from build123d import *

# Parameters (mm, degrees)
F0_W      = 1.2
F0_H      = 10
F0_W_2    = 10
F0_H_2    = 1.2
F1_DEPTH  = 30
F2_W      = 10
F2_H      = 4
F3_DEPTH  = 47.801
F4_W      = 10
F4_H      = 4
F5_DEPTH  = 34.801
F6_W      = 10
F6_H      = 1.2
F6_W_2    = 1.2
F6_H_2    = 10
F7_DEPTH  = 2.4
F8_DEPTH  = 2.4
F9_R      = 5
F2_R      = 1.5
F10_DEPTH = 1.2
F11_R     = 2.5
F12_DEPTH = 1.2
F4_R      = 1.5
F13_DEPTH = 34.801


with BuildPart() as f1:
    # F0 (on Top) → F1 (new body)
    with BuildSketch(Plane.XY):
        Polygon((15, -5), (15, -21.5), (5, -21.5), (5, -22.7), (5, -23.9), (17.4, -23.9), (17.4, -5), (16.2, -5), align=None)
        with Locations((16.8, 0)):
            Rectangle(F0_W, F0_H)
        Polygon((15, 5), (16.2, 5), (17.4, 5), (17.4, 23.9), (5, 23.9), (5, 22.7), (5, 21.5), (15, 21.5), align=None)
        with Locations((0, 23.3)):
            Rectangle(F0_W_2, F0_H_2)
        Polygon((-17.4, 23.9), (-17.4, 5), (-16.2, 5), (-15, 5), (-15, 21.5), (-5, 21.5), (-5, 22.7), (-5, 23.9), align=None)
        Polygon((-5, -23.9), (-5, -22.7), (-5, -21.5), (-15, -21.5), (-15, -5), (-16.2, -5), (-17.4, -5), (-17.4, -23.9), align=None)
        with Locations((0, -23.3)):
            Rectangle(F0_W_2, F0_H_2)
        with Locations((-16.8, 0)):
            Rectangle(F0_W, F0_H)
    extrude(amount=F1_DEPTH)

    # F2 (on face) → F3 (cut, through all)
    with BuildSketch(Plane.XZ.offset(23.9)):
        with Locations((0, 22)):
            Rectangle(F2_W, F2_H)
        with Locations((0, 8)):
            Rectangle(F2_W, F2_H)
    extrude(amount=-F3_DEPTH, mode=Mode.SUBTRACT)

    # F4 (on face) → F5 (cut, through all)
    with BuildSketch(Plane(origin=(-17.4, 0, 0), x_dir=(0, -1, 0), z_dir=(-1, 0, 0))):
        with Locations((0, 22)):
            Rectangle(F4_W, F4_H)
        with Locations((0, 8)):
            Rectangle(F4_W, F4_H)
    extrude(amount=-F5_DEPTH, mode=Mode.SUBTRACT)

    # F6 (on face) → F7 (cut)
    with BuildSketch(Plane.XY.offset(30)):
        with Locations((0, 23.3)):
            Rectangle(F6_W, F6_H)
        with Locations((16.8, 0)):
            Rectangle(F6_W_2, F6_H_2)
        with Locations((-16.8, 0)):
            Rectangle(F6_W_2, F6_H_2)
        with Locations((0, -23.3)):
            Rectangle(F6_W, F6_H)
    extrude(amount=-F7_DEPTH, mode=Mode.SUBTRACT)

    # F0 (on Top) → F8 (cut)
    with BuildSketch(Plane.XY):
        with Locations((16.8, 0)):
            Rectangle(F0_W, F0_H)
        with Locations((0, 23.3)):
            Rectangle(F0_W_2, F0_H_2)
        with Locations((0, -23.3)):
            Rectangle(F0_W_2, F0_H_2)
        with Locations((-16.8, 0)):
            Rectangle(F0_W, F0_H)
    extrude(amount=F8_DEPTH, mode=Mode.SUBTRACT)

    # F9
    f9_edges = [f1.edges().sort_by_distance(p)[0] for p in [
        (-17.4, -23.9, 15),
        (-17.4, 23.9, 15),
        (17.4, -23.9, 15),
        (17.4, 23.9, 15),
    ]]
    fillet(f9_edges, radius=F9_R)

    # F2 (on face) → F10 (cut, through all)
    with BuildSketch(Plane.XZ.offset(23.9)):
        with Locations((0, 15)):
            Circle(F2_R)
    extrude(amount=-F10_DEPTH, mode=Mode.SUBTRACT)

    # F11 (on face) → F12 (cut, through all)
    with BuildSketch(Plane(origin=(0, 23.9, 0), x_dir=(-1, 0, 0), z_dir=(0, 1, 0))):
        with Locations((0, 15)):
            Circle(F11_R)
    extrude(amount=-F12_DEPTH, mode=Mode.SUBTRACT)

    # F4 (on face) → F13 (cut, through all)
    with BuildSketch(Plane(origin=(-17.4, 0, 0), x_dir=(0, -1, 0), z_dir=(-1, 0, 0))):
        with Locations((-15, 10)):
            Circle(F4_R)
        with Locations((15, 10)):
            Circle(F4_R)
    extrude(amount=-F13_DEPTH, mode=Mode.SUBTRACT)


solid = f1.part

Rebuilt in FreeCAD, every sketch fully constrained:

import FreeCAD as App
import Part
import Sketcher


def edges_at(feature, points):
    """Names of the edges that pass closest to the given points."""
    edges = feature.Shape.Edges
    near = lambda p: min(range(len(edges)), key=lambda i: edges[i].distToShape(Part.Vertex(*p))[0])
    return sorted({f"Edge{near(p) + 1}" for p in points})

doc = App.newDocument("Part")
body = doc.addObject("PartDesign::Body", "Body")

# Sketch on XY plane
sketch1 = body.newObject("Sketcher::SketchObject", "Sketch")
sketch1.AttachmentSupport = (doc.getObject("XY_Plane"), [""])
sketch1.MapMode = "FlatFace"
sketch1.addGeometry([
    Part.LineSegment(App.Vector(-17.4, -23.9, 0), App.Vector(17.4, -23.9, 0)),  # 0
    Part.LineSegment(App.Vector(17.4, -23.9, 0), App.Vector(17.4, 23.9, 0)),  # 1
    Part.LineSegment(App.Vector(17.4, 23.9, 0), App.Vector(-17.4, 23.9, 0)),  # 2
    Part.LineSegment(App.Vector(-17.4, 23.9, 0), App.Vector(-17.4, -23.9, 0)),  # 3
    Part.LineSegment(App.Vector(15, -5, 0), App.Vector(15, -21.5, 0)),  # 4
    Part.LineSegment(App.Vector(15, -21.5, 0), App.Vector(5, -21.5, 0)),  # 5
    Part.LineSegment(App.Vector(5, -21.5, 0), App.Vector(5, -22.7, 0)),  # 6
    Part.LineSegment(App.Vector(5, -22.7, 0), App.Vector(-5, -22.7, 0)),  # 7
    Part.LineSegment(App.Vector(-5, -22.7, 0), App.Vector(-5, -21.5, 0)),  # 8
    Part.LineSegment(App.Vector(-5, -21.5, 0), App.Vector(-15, -21.5, 0)),  # 9
    Part.LineSegment(App.Vector(-15, -21.5, 0), App.Vector(-15, -5, 0)),  # 10
    Part.LineSegment(App.Vector(-15, -5, 0), App.Vector(-16.2, -5, 0)),  # 11
    Part.LineSegment(App.Vector(-16.2, -5, 0), App.Vector(-16.2, 5, 0)),  # 12
    Part.LineSegment(App.Vector(-16.2, 5, 0), App.Vector(-15, 5, 0)),  # 13
    Part.LineSegment(App.Vector(-15, 5, 0), App.Vector(-15, 21.5, 0)),  # 14
    Part.LineSegment(App.Vector(-15, 21.5, 0), App.Vector(-5, 21.5, 0)),  # 15
    Part.LineSegment(App.Vector(-5, 21.5, 0), App.Vector(-5, 22.7, 0)),  # 16
    Part.LineSegment(App.Vector(-5, 22.7, 0), App.Vector(5, 22.7, 0)),  # 17
    Part.LineSegment(App.Vector(5, 22.7, 0), App.Vector(5, 21.5, 0)),  # 18
    Part.LineSegment(App.Vector(5, 21.5, 0), App.Vector(15, 21.5, 0)),  # 19
    Part.LineSegment(App.Vector(15, 21.5, 0), App.Vector(15, 5, 0)),  # 20
    Part.LineSegment(App.Vector(15, 5, 0), App.Vector(16.2, 5, 0)),  # 21
    Part.LineSegment(App.Vector(16.2, 5, 0), App.Vector(16.2, -5, 0)),  # 22
    Part.LineSegment(App.Vector(16.2, -5, 0), App.Vector(15, -5, 0)),  # 23
], False)
sketch1.addConstraint([
    Sketcher.Constraint("Coincident", 0, 2, 1, 1),
    Sketcher.Constraint("Coincident", 1, 2, 2, 1),
    Sketcher.Constraint("Coincident", 2, 2, 3, 1),
    Sketcher.Constraint("Coincident", 3, 2, 0, 1),
    Sketcher.Constraint("Coincident", 4, 2, 5, 1),
    Sketcher.Constraint("Coincident", 5, 2, 6, 1),
    Sketcher.Constraint("Coincident", 6, 2, 7, 1),
    Sketcher.Constraint("Coincident", 7, 2, 8, 1),
    Sketcher.Constraint("Coincident", 8, 2, 9, 1),
    Sketcher.Constraint("Coincident", 9, 2, 10, 1),
    Sketcher.Constraint("Coincident", 10, 2, 11, 1),
    Sketcher.Constraint("Coincident", 11, 2, 12, 1),
    Sketcher.Constraint("Coincident", 12, 2, 13, 1),
    Sketcher.Constraint("Coincident", 13, 2, 14, 1),
    Sketcher.Constraint("Coincident", 14, 2, 15, 1),
    Sketcher.Constraint("Coincident", 15, 2, 16, 1),
    Sketcher.Constraint("Coincident", 16, 2, 17, 1),
    Sketcher.Constraint("Coincident", 17, 2, 18, 1),
    Sketcher.Constraint("Coincident", 18, 2, 19, 1),
    Sketcher.Constraint("Coincident", 19, 2, 20, 1),
    Sketcher.Constraint("Coincident", 20, 2, 21, 1),
    Sketcher.Constraint("Coincident", 21, 2, 22, 1),
    Sketcher.Constraint("Coincident", 22, 2, 23, 1),
    Sketcher.Constraint("Coincident", 23, 2, 4, 1),
    Sketcher.Constraint("Horizontal", 0),
    Sketcher.Constraint("Vertical", 1),
    Sketcher.Constraint("Horizontal", 2),
    Sketcher.Constraint("Vertical", 3),
    Sketcher.Constraint("Vertical", 4),
    Sketcher.Constraint("Horizontal", 5),
    Sketcher.Constraint("Vertical", 6),
    Sketcher.Constraint("Horizontal", 7),
    Sketcher.Constraint("Vertical", 8),
    Sketcher.Constraint("Horizontal", 9),
    Sketcher.Constraint("Vertical", 10),
    Sketcher.Constraint("Horizontal", 11),
    Sketcher.Constraint("Vertical", 12),
    Sketcher.Constraint("Horizontal", 13),
    Sketcher.Constraint("Vertical", 14),
    Sketcher.Constraint("Horizontal", 15),
    Sketcher.Constraint("Vertical", 16),
    Sketcher.Constraint("Horizontal", 17),
    Sketcher.Constraint("Vertical", 18),
    Sketcher.Constraint("Horizontal", 19),
    Sketcher.Constraint("Vertical", 20),
    Sketcher.Constraint("Horizontal", 21),
    Sketcher.Constraint("Vertical", 22),
    Sketcher.Constraint("Horizontal", 23),
    Sketcher.Constraint("Symmetric", 0, 2, 2, 2, -1, 1),
    Sketcher.Constraint("Symmetric", 4, 2, 14, 2, -1, 1),
    Sketcher.Constraint("Symmetric", 6, 2, 16, 2, -1, 1),
    Sketcher.Constraint("Symmetric", 8, 2, 18, 2, -1, 1),
    Sketcher.Constraint("Symmetric", 10, 2, 20, 2, -1, 1),
    Sketcher.Constraint("Symmetric", 12, 2, 22, 2, -1, 1),
    Sketcher.Constraint("Symmetric", 5, 2, 8, 2, -2),
    Sketcher.Constraint("Symmetric", 13, 2, 20, 2, -2),
    Sketcher.Constraint("Equal", 5, 7),
    Sketcher.Constraint("Equal", 23, 6),
    Sketcher.Constraint("Equal", 19, 12),
    Sketcher.Constraint("DistanceX", 5, 2, 5, 1, 10.0),
    Sketcher.Constraint("DistanceX", 0, 1, 0, 2, 34.8),
    Sketcher.Constraint("DistanceX", 11, 2, 11, 1, 1.2),
    Sketcher.Constraint("DistanceY", 1, 1, 1, 2, 47.8),
    Sketcher.Constraint("DistanceY", 4, 2, 4, 1, 16.5),
])
pad1 = body.newObject("PartDesign::Pad", "Pad")
pad1.Profile = sketch1
pad1.Length = 30

# Sketch on XZ plane
sketch2 = body.newObject("Sketcher::SketchObject", "Sketch001")
sketch2.AttachmentSupport = (doc.getObject("XZ_Plane"), [""])
sketch2.MapMode = "FlatFace"
sketch2.AttachmentOffset = App.Placement(App.Vector(0, 0, 23.9), App.Rotation())
sketch2.addGeometry([
    Part.LineSegment(App.Vector(-5, 24, 0), App.Vector(-5, 20, 0)),  # 0
    Part.LineSegment(App.Vector(-5, 20, 0), App.Vector(5, 20, 0)),  # 1
    Part.LineSegment(App.Vector(5, 20, 0), App.Vector(5, 24, 0)),  # 2
    Part.LineSegment(App.Vector(5, 24, 0), App.Vector(-5, 24, 0)),  # 3
    Part.LineSegment(App.Vector(-5, 10, 0), App.Vector(-5, 6, 0)),  # 4
    Part.LineSegment(App.Vector(-5, 6, 0), App.Vector(5, 6, 0)),  # 5
    Part.LineSegment(App.Vector(5, 6, 0), App.Vector(5, 10, 0)),  # 6
    Part.LineSegment(App.Vector(5, 10, 0), App.Vector(-5, 10, 0)),  # 7
], False)
sketch2.addConstraint([
    Sketcher.Constraint("Coincident", 0, 2, 1, 1),
    Sketcher.Constraint("Coincident", 1, 2, 2, 1),
    Sketcher.Constraint("Coincident", 2, 2, 3, 1),
    Sketcher.Constraint("Coincident", 3, 2, 0, 1),
    Sketcher.Constraint("Coincident", 4, 2, 5, 1),
    Sketcher.Constraint("Coincident", 5, 2, 6, 1),
    Sketcher.Constraint("Coincident", 6, 2, 7, 1),
    Sketcher.Constraint("Coincident", 7, 2, 4, 1),
    Sketcher.Constraint("Vertical", 0),
    Sketcher.Constraint("Horizontal", 1),
    Sketcher.Constraint("Vertical", 2),
    Sketcher.Constraint("Horizontal", 3),
    Sketcher.Constraint("Vertical", 4),
    Sketcher.Constraint("Horizontal", 5),
    Sketcher.Constraint("Vertical", 6),
    Sketcher.Constraint("Horizontal", 7),
    Sketcher.Constraint("Vertical", 3, 2, 4, 2),
    Sketcher.Constraint("Vertical", 2, 2, 5, 2),
    Sketcher.Constraint("Equal", 2, 4),
    Sketcher.Constraint("DistanceX", 1, 1, 1, 2, 10.0),
    Sketcher.Constraint("DistanceY", 0, 2, 0, 1, 4.0),
    Sketcher.Constraint("DistanceX", 0, 2, -1, 1, 5.0),
    Sketcher.Constraint("DistanceY", -1, 1, 0, 2, 20.0),
    Sketcher.Constraint("DistanceY", -1, 1, 4, 2, 6.0),
])
pocket1 = body.newObject("PartDesign::Pocket", "Pocket")
pocket1.Profile = sketch2
pocket1.Type = "ThroughAll"

# Sketch on YZ plane
sketch3 = body.newObject("Sketcher::SketchObject", "Sketch002")
sketch3.AttachmentSupport = (doc.getObject("YZ_Plane"), [""])
sketch3.MapMode = "FlatFace"
sketch3.AttachmentOffset = App.Placement(App.Vector(0, 0, -17.4), App.Rotation())
sketch3.addGeometry([
    Part.LineSegment(App.Vector(5, 24, 0), App.Vector(5, 20, 0)),  # 0
    Part.LineSegment(App.Vector(5, 20, 0), App.Vector(-5, 20, 0)),  # 1
    Part.LineSegment(App.Vector(-5, 20, 0), App.Vector(-5, 24, 0)),  # 2
    Part.LineSegment(App.Vector(-5, 24, 0), App.Vector(5, 24, 0)),  # 3
    Part.LineSegment(App.Vector(5, 10, 0), App.Vector(5, 6, 0)),  # 4
    Part.LineSegment(App.Vector(5, 6, 0), App.Vector(-5, 6, 0)),  # 5
    Part.LineSegment(App.Vector(-5, 6, 0), App.Vector(-5, 10, 0)),  # 6
    Part.LineSegment(App.Vector(-5, 10, 0), App.Vector(5, 10, 0)),  # 7
], False)
sketch3.addConstraint([
    Sketcher.Constraint("Coincident", 0, 2, 1, 1),
    Sketcher.Constraint("Coincident", 1, 2, 2, 1),
    Sketcher.Constraint("Coincident", 2, 2, 3, 1),
    Sketcher.Constraint("Coincident", 3, 2, 0, 1),
    Sketcher.Constraint("Coincident", 4, 2, 5, 1),
    Sketcher.Constraint("Coincident", 5, 2, 6, 1),
    Sketcher.Constraint("Coincident", 6, 2, 7, 1),
    Sketcher.Constraint("Coincident", 7, 2, 4, 1),
    Sketcher.Constraint("Vertical", 0),
    Sketcher.Constraint("Horizontal", 1),
    Sketcher.Constraint("Vertical", 2),
    Sketcher.Constraint("Horizontal", 3),
    Sketcher.Constraint("Vertical", 4),
    Sketcher.Constraint("Horizontal", 5),
    Sketcher.Constraint("Vertical", 6),
    Sketcher.Constraint("Horizontal", 7),
    Sketcher.Constraint("Vertical", 3, 2, 4, 2),
    Sketcher.Constraint("Vertical", 2, 2, 5, 2),
    Sketcher.Constraint("Equal", 2, 4),
    Sketcher.Constraint("DistanceX", 1, 2, 1, 1, 10.0),
    Sketcher.Constraint("DistanceY", 0, 2, 0, 1, 4.0),
    Sketcher.Constraint("DistanceX", -1, 1, 0, 2, 5.0),
    Sketcher.Constraint("DistanceY", -1, 1, 0, 2, 20.0),
    Sketcher.Constraint("DistanceY", -1, 1, 4, 2, 6.0),
])
pocket2 = body.newObject("PartDesign::Pocket", "Pocket001")
pocket2.Profile = sketch3
pocket2.Type = "ThroughAll"
pocket2.Reversed = True

# Sketch on XY plane
sketch4 = body.newObject("Sketcher::SketchObject", "Sketch003")
sketch4.AttachmentSupport = (doc.getObject("XY_Plane"), [""])
sketch4.MapMode = "FlatFace"
sketch4.AttachmentOffset = App.Placement(App.Vector(0, 0, 30), App.Rotation())
sketch4.addGeometry([
    Part.LineSegment(App.Vector(-5, 23.9, 0), App.Vector(-5, 22.7, 0)),  # 0
    Part.LineSegment(App.Vector(-5, 22.7, 0), App.Vector(5, 22.7, 0)),  # 1
    Part.LineSegment(App.Vector(5, 22.7, 0), App.Vector(5, 23.9, 0)),  # 2
    Part.LineSegment(App.Vector(5, 23.9, 0), App.Vector(-5, 23.9, 0)),  # 3
    Part.LineSegment(App.Vector(16.2, 5, 0), App.Vector(16.2, -5, 0)),  # 4
    Part.LineSegment(App.Vector(16.2, -5, 0), App.Vector(17.4, -5, 0)),  # 5
    Part.LineSegment(App.Vector(17.4, -5, 0), App.Vector(17.4, 5, 0)),  # 6
    Part.LineSegment(App.Vector(17.4, 5, 0), App.Vector(16.2, 5, 0)),  # 7
    Part.LineSegment(App.Vector(-17.4, 5, 0), App.Vector(-17.4, -5, 0)),  # 8
    Part.LineSegment(App.Vector(-17.4, -5, 0), App.Vector(-16.2, -5, 0)),  # 9
    Part.LineSegment(App.Vector(-16.2, -5, 0), App.Vector(-16.2, 5, 0)),  # 10
    Part.LineSegment(App.Vector(-16.2, 5, 0), App.Vector(-17.4, 5, 0)),  # 11
    Part.LineSegment(App.Vector(-5, -22.7, 0), App.Vector(-5, -23.9, 0)),  # 12
    Part.LineSegment(App.Vector(-5, -23.9, 0), App.Vector(5, -23.9, 0)),  # 13
    Part.LineSegment(App.Vector(5, -23.9, 0), App.Vector(5, -22.7, 0)),  # 14
    Part.LineSegment(App.Vector(5, -22.7, 0), App.Vector(-5, -22.7, 0)),  # 15
], False)
sketch4.addConstraint([
    Sketcher.Constraint("Coincident", 0, 2, 1, 1),
    Sketcher.Constraint("Coincident", 1, 2, 2, 1),
    Sketcher.Constraint("Coincident", 2, 2, 3, 1),
    Sketcher.Constraint("Coincident", 3, 2, 0, 1),
    Sketcher.Constraint("Coincident", 4, 2, 5, 1),
    Sketcher.Constraint("Coincident", 5, 2, 6, 1),
    Sketcher.Constraint("Coincident", 6, 2, 7, 1),
    Sketcher.Constraint("Coincident", 7, 2, 4, 1),
    Sketcher.Constraint("Coincident", 8, 2, 9, 1),
    Sketcher.Constraint("Coincident", 9, 2, 10, 1),
    Sketcher.Constraint("Coincident", 10, 2, 11, 1),
    Sketcher.Constraint("Coincident", 11, 2, 8, 1),
    Sketcher.Constraint("Coincident", 12, 2, 13, 1),
    Sketcher.Constraint("Coincident", 13, 2, 14, 1),
    Sketcher.Constraint("Coincident", 14, 2, 15, 1),
    Sketcher.Constraint("Coincident", 15, 2, 12, 1),
    Sketcher.Constraint("Vertical", 0),
    Sketcher.Constraint("Horizontal", 1),
    Sketcher.Constraint("Vertical", 2),
    Sketcher.Constraint("Horizontal", 3),
    Sketcher.Constraint("Vertical", 4),
    Sketcher.Constraint("Horizontal", 5),
    Sketcher.Constraint("Vertical", 6),
    Sketcher.Constraint("Horizontal", 7),
    Sketcher.Constraint("Vertical", 8),
    Sketcher.Constraint("Horizontal", 9),
    Sketcher.Constraint("Vertical", 10),
    Sketcher.Constraint("Horizontal", 11),
    Sketcher.Constraint("Vertical", 12),
    Sketcher.Constraint("Horizontal", 13),
    Sketcher.Constraint("Vertical", 14),
    Sketcher.Constraint("Horizontal", 15),
    Sketcher.Constraint("Symmetric", 6, 2, 8, 2, -1, 1),
    Sketcher.Constraint("Symmetric", 4, 2, 10, 2, -1, 1),
    Sketcher.Constraint("Symmetric", 2, 2, 12, 2, -1, 1),
    Sketcher.Constraint("Symmetric", 0, 2, 14, 2, -1, 1),
    Sketcher.Constraint("Horizontal", 5, 2, 8, 2),
    Sketcher.Constraint("Vertical", 3, 2, 12, 2),
    Sketcher.Constraint("Equal", 11, 0),
    Sketcher.Constraint("Equal", 15, 4),
    Sketcher.Constraint("DistanceX", 1, 1, 1, 2, 10.0),
    Sketcher.Constraint("DistanceX", 5, 1, 5, 2, 1.2),
    Sketcher.Constraint("DistanceY", -1, 1, 0, 2, 22.7),
    Sketcher.Constraint("DistanceX", -1, 1, 4, 2, 16.2),
])
pocket3 = body.newObject("PartDesign::Pocket", "Pocket002")
pocket3.Profile = sketch4
pocket3.Length = 2.4

# Sketch on XY plane
sketch5 = body.newObject("Sketcher::SketchObject", "Sketch004")
sketch5.AttachmentSupport = (doc.getObject("XY_Plane"), [""])
sketch5.MapMode = "FlatFace"
sketch5.addGeometry([
    Part.LineSegment(App.Vector(16.2, 5, 0), App.Vector(16.2, -5, 0)),  # 0
    Part.LineSegment(App.Vector(16.2, -5, 0), App.Vector(17.4, -5, 0)),  # 1
    Part.LineSegment(App.Vector(17.4, -5, 0), App.Vector(17.4, 5, 0)),  # 2
    Part.LineSegment(App.Vector(17.4, 5, 0), App.Vector(16.2, 5, 0)),  # 3
    Part.LineSegment(App.Vector(-5, 23.9, 0), App.Vector(-5, 22.7, 0)),  # 4
    Part.LineSegment(App.Vector(-5, 22.7, 0), App.Vector(5, 22.7, 0)),  # 5
    Part.LineSegment(App.Vector(5, 22.7, 0), App.Vector(5, 23.9, 0)),  # 6
    Part.LineSegment(App.Vector(5, 23.9, 0), App.Vector(-5, 23.9, 0)),  # 7
    Part.LineSegment(App.Vector(-5, -22.7, 0), App.Vector(-5, -23.9, 0)),  # 8
    Part.LineSegment(App.Vector(-5, -23.9, 0), App.Vector(5, -23.9, 0)),  # 9
    Part.LineSegment(App.Vector(5, -23.9, 0), App.Vector(5, -22.7, 0)),  # 10
    Part.LineSegment(App.Vector(5, -22.7, 0), App.Vector(-5, -22.7, 0)),  # 11
    Part.LineSegment(App.Vector(-17.4, 5, 0), App.Vector(-17.4, -5, 0)),  # 12
    Part.LineSegment(App.Vector(-17.4, -5, 0), App.Vector(-16.2, -5, 0)),  # 13
    Part.LineSegment(App.Vector(-16.2, -5, 0), App.Vector(-16.2, 5, 0)),  # 14
    Part.LineSegment(App.Vector(-16.2, 5, 0), App.Vector(-17.4, 5, 0)),  # 15
], False)
sketch5.addConstraint([
    Sketcher.Constraint("Coincident", 0, 2, 1, 1),
    Sketcher.Constraint("Coincident", 1, 2, 2, 1),
    Sketcher.Constraint("Coincident", 2, 2, 3, 1),
    Sketcher.Constraint("Coincident", 3, 2, 0, 1),
    Sketcher.Constraint("Coincident", 4, 2, 5, 1),
    Sketcher.Constraint("Coincident", 5, 2, 6, 1),
    Sketcher.Constraint("Coincident", 6, 2, 7, 1),
    Sketcher.Constraint("Coincident", 7, 2, 4, 1),
    Sketcher.Constraint("Coincident", 8, 2, 9, 1),
    Sketcher.Constraint("Coincident", 9, 2, 10, 1),
    Sketcher.Constraint("Coincident", 10, 2, 11, 1),
    Sketcher.Constraint("Coincident", 11, 2, 8, 1),
    Sketcher.Constraint("Coincident", 12, 2, 13, 1),
    Sketcher.Constraint("Coincident", 13, 2, 14, 1),
    Sketcher.Constraint("Coincident", 14, 2, 15, 1),
    Sketcher.Constraint("Coincident", 15, 2, 12, 1),
    Sketcher.Constraint("Vertical", 0),
    Sketcher.Constraint("Horizontal", 1),
    Sketcher.Constraint("Vertical", 2),
    Sketcher.Constraint("Horizontal", 3),
    Sketcher.Constraint("Vertical", 4),
    Sketcher.Constraint("Horizontal", 5),
    Sketcher.Constraint("Vertical", 6),
    Sketcher.Constraint("Horizontal", 7),
    Sketcher.Constraint("Vertical", 8),
    Sketcher.Constraint("Horizontal", 9),
    Sketcher.Constraint("Vertical", 10),
    Sketcher.Constraint("Horizontal", 11),
    Sketcher.Constraint("Vertical", 12),
    Sketcher.Constraint("Horizontal", 13),
    Sketcher.Constraint("Vertical", 14),
    Sketcher.Constraint("Horizontal", 15),
    Sketcher.Constraint("Symmetric", 6, 2, 8, 2, -1, 1),
    Sketcher.Constraint("Symmetric", 4, 2, 10, 2, -1, 1),
    Sketcher.Constraint("Symmetric", 2, 2, 12, 2, -1, 1),
    Sketcher.Constraint("Symmetric", 0, 2, 14, 2, -1, 1),
    Sketcher.Constraint("Horizontal", 1, 2, 12, 2),
    Sketcher.Constraint("Vertical", 7, 2, 8, 2),
    Sketcher.Constraint("Equal", 11, 0),
    Sketcher.Constraint("Equal", 15, 4),
    Sketcher.Constraint("DistanceX", 5, 1, 5, 2, 10.0),
    Sketcher.Constraint("DistanceX", 1, 1, 1, 2, 1.2),
    Sketcher.Constraint("DistanceX", -1, 1, 0, 2, 16.2),
    Sketcher.Constraint("DistanceY", -1, 1, 4, 2, 22.7),
])
pocket4 = body.newObject("PartDesign::Pocket", "Pocket003")
pocket4.Profile = sketch5
pocket4.Length = 2.4
pocket4.Reversed = True
doc.recompute()

fillet = body.newObject("PartDesign::Fillet", "Fillet")
fillet.Base = (pocket4, edges_at(pocket4, [
    (-17.4, -23.9, 15),
    (-17.4, 23.9, 15),
    (17.4, -23.9, 15),
    (17.4, 23.9, 15),
]))
fillet.Radius = 5

# Sketch on XZ plane
sketch6 = body.newObject("Sketcher::SketchObject", "Sketch005")
sketch6.AttachmentSupport = (doc.getObject("XZ_Plane"), [""])
sketch6.MapMode = "FlatFace"
sketch6.AttachmentOffset = App.Placement(App.Vector(0, 0, 23.9), App.Rotation())
sketch6.addGeometry(Part.Circle(App.Vector(0, 15, 0), App.Vector(0, 0, 1), 1.5), False)
sketch6.addConstraint([
    Sketcher.Constraint("PointOnObject", 0, 3, -2),
    Sketcher.Constraint("Diameter", 0, 3.0),
    Sketcher.Constraint("DistanceY", -1, 1, 0, 3, 15.0),
])
pocket5 = body.newObject("PartDesign::Pocket", "Pocket004")
pocket5.Profile = sketch6
pocket5.Length = 1.2

# Sketch on XZ plane
sketch7 = body.newObject("Sketcher::SketchObject", "Sketch006")
sketch7.AttachmentSupport = (doc.getObject("XZ_Plane"), [""])
sketch7.MapMode = "FlatFace"
sketch7.AttachmentOffset = App.Placement(App.Vector(0, 0, -23.9), App.Rotation())
sketch7.addGeometry(Part.Circle(App.Vector(0, 15, 0), App.Vector(0, 0, 1), 2.5), False)
sketch7.addConstraint([
    Sketcher.Constraint("PointOnObject", 0, 3, -2),
    Sketcher.Constraint("Diameter", 0, 5.0),
    Sketcher.Constraint("DistanceY", -1, 1, 0, 3, 15.0),
])
pocket6 = body.newObject("PartDesign::Pocket", "Pocket005")
pocket6.Profile = sketch7
pocket6.Length = 1.2
pocket6.Reversed = True

# Sketch on YZ plane
sketch8 = body.newObject("Sketcher::SketchObject", "Sketch007")
sketch8.AttachmentSupport = (doc.getObject("YZ_Plane"), [""])
sketch8.MapMode = "FlatFace"
sketch8.AttachmentOffset = App.Placement(App.Vector(0, 0, -17.4), App.Rotation())
sketch8.addGeometry([
    Part.Circle(App.Vector(15, 10, 0), App.Vector(0, 0, 1), 1.5),
    Part.Circle(App.Vector(-15, 10, 0), App.Vector(0, 0, 1), 1.5),
], False)
sketch8.addConstraint([
    Sketcher.Constraint("Equal", 0, 1),
    Sketcher.Constraint("Symmetric", 0, 3, 1, 3, -2),
    Sketcher.Constraint("Diameter", 0, 3.0),
    Sketcher.Constraint("DistanceX", -1, 1, 0, 3, 15.0),
    Sketcher.Constraint("DistanceY", -1, 1, 0, 3, 10.0),
])
pocket7 = body.newObject("PartDesign::Pocket", "Pocket006")
pocket7.Profile = sketch8
pocket7.Type = "ThroughAll"
pocket7.Reversed = True

doc.recompute()
